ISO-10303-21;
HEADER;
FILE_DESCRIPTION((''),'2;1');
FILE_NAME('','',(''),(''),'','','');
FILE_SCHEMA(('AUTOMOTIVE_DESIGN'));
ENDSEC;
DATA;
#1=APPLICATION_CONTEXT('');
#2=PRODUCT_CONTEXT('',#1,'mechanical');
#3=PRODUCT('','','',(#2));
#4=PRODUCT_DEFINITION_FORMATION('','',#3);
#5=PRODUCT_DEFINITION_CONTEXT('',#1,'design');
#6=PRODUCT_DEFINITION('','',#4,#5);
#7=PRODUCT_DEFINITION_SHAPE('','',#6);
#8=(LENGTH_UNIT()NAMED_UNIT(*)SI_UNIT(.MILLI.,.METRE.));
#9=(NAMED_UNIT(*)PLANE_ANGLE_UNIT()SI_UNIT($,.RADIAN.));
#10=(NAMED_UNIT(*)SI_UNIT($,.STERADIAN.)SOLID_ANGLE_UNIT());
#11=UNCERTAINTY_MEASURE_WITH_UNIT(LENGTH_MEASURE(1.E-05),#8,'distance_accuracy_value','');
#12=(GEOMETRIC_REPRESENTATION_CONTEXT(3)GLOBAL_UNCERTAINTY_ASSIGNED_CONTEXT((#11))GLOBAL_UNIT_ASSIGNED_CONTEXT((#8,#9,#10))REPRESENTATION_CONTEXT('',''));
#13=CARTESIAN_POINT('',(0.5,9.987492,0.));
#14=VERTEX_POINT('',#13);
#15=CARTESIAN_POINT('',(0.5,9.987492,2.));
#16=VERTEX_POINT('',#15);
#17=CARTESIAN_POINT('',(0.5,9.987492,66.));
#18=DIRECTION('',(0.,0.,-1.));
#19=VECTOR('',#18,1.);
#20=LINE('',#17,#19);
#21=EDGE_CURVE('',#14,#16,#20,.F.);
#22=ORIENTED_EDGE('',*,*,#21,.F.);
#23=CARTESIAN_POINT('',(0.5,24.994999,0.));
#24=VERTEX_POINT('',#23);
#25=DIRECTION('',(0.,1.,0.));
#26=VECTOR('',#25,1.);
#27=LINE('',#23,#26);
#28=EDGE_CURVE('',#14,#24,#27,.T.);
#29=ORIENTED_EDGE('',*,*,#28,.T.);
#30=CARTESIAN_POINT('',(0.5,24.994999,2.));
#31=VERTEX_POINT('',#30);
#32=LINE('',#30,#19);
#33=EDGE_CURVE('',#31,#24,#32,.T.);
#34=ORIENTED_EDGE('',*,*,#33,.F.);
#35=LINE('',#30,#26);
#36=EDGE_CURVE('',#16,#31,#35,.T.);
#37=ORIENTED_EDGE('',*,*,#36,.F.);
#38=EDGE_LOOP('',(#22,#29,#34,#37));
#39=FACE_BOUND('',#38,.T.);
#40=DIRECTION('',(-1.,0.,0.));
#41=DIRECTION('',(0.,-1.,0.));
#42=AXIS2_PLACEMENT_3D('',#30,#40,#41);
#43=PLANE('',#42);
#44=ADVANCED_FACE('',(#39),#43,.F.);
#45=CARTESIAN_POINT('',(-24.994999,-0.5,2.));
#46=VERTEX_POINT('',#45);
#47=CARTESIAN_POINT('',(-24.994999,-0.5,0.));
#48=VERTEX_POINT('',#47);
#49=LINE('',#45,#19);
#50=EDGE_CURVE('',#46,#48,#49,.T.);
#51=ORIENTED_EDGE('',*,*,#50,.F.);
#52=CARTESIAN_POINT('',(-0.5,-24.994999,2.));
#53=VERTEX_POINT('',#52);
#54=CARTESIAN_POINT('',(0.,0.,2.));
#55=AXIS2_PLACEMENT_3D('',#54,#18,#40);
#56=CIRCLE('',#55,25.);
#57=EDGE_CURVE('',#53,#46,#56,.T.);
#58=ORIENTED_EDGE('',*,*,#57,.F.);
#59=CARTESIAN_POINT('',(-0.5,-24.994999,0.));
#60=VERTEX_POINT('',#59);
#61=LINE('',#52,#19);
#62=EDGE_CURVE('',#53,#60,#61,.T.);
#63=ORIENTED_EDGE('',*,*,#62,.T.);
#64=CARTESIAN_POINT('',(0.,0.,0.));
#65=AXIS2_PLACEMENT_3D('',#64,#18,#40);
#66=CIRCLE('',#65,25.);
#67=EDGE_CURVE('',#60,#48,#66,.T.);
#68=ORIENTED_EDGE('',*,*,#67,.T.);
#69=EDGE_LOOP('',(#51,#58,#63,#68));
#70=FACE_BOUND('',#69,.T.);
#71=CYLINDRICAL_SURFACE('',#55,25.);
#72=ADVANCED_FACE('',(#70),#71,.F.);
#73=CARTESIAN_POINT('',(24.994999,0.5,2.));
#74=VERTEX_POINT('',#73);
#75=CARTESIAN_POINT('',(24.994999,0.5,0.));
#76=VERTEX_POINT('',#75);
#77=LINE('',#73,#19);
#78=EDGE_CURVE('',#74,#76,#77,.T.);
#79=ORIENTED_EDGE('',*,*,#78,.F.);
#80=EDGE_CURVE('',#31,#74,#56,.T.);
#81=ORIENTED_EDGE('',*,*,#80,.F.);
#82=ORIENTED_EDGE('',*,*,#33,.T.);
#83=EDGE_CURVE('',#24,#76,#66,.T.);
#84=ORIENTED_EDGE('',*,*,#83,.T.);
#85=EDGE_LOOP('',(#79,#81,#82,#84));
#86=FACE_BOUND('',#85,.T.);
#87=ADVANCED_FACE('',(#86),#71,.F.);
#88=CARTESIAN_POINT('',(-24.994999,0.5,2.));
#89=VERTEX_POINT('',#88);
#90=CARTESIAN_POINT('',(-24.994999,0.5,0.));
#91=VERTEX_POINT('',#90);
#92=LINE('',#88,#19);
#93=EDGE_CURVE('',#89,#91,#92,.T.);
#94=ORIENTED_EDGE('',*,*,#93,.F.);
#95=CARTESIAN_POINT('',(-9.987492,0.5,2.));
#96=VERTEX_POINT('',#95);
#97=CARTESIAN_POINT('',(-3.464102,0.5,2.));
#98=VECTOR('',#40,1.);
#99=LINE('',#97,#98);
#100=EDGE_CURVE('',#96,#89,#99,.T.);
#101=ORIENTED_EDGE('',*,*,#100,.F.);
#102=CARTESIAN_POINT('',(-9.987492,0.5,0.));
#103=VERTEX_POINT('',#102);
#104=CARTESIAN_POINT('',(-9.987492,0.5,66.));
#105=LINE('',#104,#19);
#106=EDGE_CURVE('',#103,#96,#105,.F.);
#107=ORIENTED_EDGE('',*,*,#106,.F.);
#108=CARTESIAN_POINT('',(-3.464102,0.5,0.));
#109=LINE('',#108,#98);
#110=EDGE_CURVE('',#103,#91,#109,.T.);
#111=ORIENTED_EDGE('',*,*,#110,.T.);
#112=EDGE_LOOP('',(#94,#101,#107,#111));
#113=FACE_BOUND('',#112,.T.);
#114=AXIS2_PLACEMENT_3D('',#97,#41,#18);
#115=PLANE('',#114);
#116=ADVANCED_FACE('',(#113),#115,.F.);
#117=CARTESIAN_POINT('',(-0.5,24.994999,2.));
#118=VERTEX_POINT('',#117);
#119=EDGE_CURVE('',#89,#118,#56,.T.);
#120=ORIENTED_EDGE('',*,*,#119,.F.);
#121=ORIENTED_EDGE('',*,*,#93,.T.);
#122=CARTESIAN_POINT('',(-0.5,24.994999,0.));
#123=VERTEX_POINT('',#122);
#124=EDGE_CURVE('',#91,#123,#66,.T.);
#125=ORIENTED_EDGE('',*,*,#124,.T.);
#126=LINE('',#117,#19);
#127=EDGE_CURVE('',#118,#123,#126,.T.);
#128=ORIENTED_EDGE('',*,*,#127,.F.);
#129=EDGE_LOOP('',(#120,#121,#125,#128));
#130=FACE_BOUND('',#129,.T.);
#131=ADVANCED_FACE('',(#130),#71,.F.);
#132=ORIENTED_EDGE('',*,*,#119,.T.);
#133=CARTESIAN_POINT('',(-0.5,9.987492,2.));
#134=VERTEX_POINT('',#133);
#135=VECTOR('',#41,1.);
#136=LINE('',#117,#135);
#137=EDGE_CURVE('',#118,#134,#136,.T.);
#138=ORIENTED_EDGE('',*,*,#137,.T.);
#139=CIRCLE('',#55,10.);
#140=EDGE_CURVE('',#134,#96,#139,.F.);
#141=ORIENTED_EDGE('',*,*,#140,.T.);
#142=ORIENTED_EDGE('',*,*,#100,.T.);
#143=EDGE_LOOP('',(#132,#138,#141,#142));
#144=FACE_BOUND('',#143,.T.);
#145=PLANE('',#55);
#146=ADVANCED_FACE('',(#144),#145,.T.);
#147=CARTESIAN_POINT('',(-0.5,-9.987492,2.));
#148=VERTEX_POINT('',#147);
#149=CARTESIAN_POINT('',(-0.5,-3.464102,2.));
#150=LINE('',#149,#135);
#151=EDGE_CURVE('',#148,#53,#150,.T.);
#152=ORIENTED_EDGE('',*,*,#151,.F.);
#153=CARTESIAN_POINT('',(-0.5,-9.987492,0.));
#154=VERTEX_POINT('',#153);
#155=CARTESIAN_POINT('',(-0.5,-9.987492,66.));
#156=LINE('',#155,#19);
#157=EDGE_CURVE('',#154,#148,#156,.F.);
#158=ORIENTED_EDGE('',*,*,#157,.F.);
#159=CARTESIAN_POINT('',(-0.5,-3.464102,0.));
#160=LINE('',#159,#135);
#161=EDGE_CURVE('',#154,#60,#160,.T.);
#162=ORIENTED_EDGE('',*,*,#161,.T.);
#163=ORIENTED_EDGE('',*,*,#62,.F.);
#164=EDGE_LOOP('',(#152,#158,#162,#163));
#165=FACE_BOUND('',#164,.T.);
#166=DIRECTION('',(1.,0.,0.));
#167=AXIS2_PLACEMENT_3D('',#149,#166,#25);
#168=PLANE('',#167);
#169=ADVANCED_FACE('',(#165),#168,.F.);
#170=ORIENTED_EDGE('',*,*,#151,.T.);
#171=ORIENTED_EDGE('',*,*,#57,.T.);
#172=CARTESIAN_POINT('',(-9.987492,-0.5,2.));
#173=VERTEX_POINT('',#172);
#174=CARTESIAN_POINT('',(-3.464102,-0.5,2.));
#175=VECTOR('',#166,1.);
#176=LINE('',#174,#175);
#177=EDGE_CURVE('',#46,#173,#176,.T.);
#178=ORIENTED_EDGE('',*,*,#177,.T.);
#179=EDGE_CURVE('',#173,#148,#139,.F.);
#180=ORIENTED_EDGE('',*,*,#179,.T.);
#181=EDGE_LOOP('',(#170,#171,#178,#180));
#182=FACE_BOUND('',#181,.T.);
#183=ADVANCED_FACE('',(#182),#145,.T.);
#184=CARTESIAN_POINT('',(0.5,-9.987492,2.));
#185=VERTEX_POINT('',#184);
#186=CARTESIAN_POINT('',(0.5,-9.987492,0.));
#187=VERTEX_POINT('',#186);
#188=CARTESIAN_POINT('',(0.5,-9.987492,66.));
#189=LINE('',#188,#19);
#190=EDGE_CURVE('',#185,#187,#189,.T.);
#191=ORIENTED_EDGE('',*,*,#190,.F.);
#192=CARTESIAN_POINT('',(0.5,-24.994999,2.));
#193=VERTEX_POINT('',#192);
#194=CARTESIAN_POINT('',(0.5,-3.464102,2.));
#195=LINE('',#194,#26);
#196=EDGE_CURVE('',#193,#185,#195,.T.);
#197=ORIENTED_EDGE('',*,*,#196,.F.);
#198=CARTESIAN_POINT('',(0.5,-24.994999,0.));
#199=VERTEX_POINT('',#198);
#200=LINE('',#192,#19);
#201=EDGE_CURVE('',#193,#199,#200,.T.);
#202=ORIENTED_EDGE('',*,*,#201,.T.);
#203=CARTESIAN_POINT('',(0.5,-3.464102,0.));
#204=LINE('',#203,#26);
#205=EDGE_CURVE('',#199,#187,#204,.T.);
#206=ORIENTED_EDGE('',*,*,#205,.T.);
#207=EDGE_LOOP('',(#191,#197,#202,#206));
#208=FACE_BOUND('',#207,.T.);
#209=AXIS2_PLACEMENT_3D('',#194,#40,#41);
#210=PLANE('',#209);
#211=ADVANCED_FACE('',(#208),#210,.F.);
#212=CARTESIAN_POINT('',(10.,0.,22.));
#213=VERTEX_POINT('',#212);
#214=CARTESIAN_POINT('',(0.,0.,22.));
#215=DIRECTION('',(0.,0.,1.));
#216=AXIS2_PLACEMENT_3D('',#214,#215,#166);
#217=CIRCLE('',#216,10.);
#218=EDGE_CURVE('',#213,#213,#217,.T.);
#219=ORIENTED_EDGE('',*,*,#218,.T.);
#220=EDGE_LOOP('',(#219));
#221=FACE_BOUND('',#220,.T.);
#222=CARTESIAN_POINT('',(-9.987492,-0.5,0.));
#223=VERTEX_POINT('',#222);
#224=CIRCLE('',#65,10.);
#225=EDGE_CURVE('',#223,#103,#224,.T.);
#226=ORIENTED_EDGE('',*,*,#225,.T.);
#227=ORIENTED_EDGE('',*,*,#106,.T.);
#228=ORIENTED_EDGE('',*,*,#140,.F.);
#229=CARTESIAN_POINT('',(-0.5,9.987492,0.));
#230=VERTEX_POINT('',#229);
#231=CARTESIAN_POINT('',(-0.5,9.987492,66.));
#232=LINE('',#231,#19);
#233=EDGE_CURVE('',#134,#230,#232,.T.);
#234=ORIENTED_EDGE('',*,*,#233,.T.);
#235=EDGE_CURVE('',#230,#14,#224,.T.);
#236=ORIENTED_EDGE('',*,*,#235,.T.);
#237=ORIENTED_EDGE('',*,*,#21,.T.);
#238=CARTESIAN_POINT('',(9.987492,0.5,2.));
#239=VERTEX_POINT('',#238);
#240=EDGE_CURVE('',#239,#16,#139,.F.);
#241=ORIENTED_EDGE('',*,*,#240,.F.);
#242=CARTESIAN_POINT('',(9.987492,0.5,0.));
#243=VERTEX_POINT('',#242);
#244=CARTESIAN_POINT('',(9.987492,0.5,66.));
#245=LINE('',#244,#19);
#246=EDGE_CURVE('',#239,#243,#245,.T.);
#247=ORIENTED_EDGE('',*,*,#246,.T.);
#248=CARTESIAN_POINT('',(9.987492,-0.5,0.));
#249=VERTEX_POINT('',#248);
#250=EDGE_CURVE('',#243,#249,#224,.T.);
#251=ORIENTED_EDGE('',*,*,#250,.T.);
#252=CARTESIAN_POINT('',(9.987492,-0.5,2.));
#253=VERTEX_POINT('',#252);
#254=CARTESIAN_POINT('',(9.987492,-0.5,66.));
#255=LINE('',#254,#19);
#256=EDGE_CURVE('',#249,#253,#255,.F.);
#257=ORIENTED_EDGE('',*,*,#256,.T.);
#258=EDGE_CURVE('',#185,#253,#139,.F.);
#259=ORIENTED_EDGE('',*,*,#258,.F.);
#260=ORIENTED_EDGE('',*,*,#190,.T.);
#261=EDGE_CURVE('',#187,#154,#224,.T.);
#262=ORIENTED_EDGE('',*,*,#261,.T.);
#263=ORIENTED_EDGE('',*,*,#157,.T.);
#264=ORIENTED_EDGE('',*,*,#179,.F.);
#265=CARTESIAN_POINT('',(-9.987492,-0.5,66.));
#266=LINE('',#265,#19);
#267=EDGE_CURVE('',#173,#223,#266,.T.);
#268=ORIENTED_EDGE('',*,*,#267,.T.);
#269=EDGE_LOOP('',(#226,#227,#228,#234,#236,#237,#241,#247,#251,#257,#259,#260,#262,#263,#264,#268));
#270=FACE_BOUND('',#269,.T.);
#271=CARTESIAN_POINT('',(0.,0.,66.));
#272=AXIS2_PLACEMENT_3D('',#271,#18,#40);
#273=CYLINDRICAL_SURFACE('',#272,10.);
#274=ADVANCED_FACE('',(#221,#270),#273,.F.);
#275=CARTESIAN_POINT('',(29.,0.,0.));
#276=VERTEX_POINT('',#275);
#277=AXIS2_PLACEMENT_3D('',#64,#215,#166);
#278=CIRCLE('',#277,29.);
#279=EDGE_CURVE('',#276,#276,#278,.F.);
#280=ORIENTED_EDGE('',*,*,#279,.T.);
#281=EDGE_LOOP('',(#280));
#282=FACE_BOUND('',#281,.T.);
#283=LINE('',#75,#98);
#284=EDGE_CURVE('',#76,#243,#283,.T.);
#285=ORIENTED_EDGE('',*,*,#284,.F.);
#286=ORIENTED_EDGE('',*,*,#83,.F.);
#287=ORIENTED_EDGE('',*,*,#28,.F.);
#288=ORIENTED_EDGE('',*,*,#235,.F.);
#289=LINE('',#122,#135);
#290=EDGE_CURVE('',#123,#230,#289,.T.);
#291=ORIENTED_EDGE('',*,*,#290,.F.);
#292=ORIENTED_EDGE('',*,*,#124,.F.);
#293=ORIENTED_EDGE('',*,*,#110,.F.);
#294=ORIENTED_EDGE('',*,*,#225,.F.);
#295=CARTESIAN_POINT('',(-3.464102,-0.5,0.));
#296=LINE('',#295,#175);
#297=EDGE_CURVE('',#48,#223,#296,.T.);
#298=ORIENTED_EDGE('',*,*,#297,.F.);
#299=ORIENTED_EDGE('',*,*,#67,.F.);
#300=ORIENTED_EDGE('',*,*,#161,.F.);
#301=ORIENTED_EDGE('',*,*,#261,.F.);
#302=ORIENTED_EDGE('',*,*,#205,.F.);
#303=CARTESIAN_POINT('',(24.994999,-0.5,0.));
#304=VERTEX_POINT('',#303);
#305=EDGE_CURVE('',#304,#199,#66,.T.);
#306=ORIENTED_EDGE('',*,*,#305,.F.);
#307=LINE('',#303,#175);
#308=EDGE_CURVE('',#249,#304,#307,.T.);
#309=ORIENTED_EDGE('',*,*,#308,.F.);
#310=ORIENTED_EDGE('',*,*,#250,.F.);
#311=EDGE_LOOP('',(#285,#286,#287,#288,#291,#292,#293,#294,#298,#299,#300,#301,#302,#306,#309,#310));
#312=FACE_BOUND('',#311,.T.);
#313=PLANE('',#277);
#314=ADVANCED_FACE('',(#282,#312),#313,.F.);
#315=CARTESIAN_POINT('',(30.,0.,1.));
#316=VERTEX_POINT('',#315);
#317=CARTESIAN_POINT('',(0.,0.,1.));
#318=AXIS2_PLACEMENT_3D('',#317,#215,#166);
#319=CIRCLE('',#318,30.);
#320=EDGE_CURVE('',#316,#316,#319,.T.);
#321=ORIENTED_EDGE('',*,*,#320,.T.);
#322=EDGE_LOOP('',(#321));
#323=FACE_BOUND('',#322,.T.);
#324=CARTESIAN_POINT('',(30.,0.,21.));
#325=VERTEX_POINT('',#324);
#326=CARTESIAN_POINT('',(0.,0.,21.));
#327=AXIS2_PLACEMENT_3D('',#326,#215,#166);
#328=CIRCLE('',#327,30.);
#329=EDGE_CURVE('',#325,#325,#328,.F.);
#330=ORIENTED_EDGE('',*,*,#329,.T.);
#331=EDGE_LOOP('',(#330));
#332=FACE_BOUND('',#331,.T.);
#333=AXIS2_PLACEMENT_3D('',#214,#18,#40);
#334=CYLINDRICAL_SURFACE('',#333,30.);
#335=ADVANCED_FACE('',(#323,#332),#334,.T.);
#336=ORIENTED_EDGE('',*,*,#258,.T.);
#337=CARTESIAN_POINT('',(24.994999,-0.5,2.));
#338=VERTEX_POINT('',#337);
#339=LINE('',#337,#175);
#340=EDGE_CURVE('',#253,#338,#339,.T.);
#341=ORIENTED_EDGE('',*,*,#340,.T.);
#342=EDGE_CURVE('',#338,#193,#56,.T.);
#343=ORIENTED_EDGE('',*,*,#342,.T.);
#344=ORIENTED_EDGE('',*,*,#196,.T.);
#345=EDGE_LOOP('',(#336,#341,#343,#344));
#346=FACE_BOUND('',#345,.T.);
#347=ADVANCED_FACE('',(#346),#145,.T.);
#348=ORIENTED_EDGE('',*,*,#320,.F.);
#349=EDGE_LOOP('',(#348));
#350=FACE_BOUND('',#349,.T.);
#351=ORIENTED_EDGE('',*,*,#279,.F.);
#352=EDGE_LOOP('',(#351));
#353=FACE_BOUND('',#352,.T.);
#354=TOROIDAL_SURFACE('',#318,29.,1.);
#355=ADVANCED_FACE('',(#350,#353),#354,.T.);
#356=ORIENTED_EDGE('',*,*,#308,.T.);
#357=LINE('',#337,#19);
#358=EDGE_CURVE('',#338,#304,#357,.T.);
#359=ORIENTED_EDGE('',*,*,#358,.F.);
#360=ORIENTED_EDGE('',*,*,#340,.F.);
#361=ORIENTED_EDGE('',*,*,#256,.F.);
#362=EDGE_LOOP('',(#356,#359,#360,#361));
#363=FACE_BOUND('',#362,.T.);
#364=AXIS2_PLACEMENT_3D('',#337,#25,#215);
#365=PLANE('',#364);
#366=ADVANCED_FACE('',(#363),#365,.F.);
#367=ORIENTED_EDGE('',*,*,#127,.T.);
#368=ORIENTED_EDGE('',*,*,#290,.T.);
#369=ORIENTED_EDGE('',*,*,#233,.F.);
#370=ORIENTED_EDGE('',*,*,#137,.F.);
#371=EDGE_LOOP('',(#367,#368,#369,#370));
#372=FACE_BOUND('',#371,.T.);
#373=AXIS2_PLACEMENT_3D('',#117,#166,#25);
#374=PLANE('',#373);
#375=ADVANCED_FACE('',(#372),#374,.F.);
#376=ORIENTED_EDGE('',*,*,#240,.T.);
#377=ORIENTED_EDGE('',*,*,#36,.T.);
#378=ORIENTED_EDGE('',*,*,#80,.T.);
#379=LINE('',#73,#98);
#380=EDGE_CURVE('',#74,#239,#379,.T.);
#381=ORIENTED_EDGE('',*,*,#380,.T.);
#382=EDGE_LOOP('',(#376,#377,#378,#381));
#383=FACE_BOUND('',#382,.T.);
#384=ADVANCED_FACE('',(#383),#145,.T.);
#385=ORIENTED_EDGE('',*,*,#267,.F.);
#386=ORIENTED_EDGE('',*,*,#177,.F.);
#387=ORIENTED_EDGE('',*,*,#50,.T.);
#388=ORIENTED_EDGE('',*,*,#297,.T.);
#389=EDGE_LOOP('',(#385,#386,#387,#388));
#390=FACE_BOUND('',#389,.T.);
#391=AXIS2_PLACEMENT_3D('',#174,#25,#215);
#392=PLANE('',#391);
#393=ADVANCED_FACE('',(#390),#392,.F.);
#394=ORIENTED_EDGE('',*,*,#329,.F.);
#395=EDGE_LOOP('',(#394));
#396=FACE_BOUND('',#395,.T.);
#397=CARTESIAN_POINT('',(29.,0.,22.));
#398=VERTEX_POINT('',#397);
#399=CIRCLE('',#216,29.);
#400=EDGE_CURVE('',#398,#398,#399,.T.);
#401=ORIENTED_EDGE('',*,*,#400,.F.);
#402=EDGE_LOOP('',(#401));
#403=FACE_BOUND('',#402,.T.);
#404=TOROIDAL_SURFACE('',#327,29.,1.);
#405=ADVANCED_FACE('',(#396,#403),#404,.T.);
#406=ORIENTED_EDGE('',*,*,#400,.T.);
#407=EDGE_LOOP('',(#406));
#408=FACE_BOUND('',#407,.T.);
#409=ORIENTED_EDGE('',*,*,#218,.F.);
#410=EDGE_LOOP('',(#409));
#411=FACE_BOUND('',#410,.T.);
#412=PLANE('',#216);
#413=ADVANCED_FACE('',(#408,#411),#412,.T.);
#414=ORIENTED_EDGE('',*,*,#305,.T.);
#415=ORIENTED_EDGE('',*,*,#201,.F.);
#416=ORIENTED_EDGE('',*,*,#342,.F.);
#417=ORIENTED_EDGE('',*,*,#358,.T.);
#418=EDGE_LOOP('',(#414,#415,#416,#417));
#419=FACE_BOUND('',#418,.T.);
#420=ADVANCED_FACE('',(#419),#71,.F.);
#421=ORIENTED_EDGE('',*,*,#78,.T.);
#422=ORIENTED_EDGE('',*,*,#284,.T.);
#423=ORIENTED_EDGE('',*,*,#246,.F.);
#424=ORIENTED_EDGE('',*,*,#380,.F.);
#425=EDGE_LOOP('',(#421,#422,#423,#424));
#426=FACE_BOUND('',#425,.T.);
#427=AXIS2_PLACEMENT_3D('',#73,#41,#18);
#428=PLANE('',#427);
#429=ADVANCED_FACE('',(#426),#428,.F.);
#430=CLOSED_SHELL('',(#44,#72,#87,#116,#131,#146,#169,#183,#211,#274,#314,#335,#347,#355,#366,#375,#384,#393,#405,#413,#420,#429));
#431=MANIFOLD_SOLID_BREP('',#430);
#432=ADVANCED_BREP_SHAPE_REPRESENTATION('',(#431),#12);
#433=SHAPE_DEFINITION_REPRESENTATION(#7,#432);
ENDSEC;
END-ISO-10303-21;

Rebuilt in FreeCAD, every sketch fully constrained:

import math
import FreeCAD as App
import Part
import Sketcher
from FreeCAD import Vector


def edges_at(feature, points):
    """Names of the edges that pass closest to the given points."""
    edges = feature.Shape.Edges
    near = lambda p: min(range(len(edges)), key=lambda i: edges[i].distToShape(Part.Vertex(*p))[0])
    return sorted({f"Edge{near(p) + 1}" for p in points})

doc = App.newDocument("Part")
params = doc.addObject("Spreadsheet::Sheet", "Params")
for row, (alias, value) in enumerate([
    ("sketch1_diameter", "60 mm"),
    ("pad1_length", "22 mm"),
    ("sketch2_diameter", "20 mm"),
    ("pocket1_length", "66 mm"),
    ("fillet_radius", "1 mm"),
    ("sketch3_radius", "25 mm"),
    ("sketch3_radius2", "3.5 mm"),
    ("pocket2_length", "2 mm"),
], start=1):
    params.set(f"A{row}", alias)
    params.set(f"B{row}", "=" + value)
    params.setAlias(f"B{row}", alias)

body = doc.addObject("PartDesign::Body", "Body")

sketch1 = body.newObject("Sketcher::SketchObject", "Sketch")
sketch1.AttachmentSupport = (doc.getObject("XY_Plane"), [""])
sketch1.MapMode = "FlatFace"
sketch1.addGeometry(Part.Circle(Vector(0, 0, 0), Vector(0, 0, 1), 30), False)
sketch1.addConstraint([
    Sketcher.Constraint("Coincident", 0, 3, -1, 1),
    Sketcher.Constraint("Diameter", 0, 60.0),
])
sketch1.setExpression("Constraints[1]", "Params.sketch1_diameter")
pad1 = body.newObject("PartDesign::Pad", "Pad")
pad1.Profile = sketch1
pad1.setExpression("Length", "Params.pad1_length")

sketch2 = body.newObject("Sketcher::SketchObject", "Sketch001")
sketch2.AttachmentSupport = (doc.getObject("XY_Plane"), [""])
sketch2.MapMode = "FlatFace"
sketch2.addGeometry(Part.Circle(Vector(0, 0, 0), Vector(0, 0, 1), 10), False)
sketch2.addConstraint([
    Sketcher.Constraint("Coincident", 0, 3, -1, 1),
    Sketcher.Constraint("Diameter", 0, 20.0),
])
sketch2.setExpression("Constraints[1]", "Params.sketch2_diameter")
pocket1 = body.newObject("PartDesign::Pocket", "Pocket")
pocket1.Profile = sketch2
pocket1.setExpression("Length", "Params.pocket1_length")
pocket1.Reversed = True
doc.recompute()

fillet = body.newObject("PartDesign::Fillet", "Fillet")
fillet.Base = (pocket1, edges_at(pocket1, [(-30, 0, 0), (-30, 0, 22)]))
fillet.setExpression("Radius", "Params.fillet_radius")

sketch3 = body.newObject("Sketcher::SketchObject", "Sketch002")
sketch3.AttachmentSupport = (doc.getObject("XY_Plane"), [""])
sketch3.MapMode = "FlatFace"
sketch3.addGeometry([
    Part.LineSegment(Vector(0.5, 3.464102, 0), Vector(0.5, 24.994999, 0)),
    Part.ArcOfCircle(Part.Circle(Vector(0, 0, 0), Vector(0, 0, 1), 25), math.radians(1.145992), math.radians(88.854008)),
    Part.LineSegment(Vector(24.994999, 0.5, 0), Vector(3.464102, 0.5, 0)),
    Part.ArcOfCircle(Part.Circle(Vector(0, 0, 0), Vector(0, 0, 1), 3.5), math.radians(8.213211), math.radians(81.786789)),
    Part.LineSegment(Vector(-0.5, 24.994999, 0), Vector(-0.5, 3.464102, 0)),
    Part.ArcOfCircle(Part.Circle(Vector(0, 0, 0), Vector(0, 0, 1), 3.5), math.radians(98.213211), math.radians(171.786789)),
    Part.LineSegment(Vector(-3.464102, 0.5, 0), Vector(-24.994999, 0.5, 0)),
    Part.ArcOfCircle(Part.Circle(Vector(0, 0, 0), Vector(0, 0, 1), 25), math.radians(91.145992), math.radians(178.854008)),
    Part.LineSegment(Vector(3.464102, -0.5, 0), Vector(24.994999, -0.5, 0)),
    Part.ArcOfCircle(Part.Circle(Vector(0, 0, 0), Vector(0, 0, 1), 25), math.radians(-88.854008), math.radians(-1.145992)),
    Part.LineSegment(Vector(0.5, -24.994999, 0), Vector(0.5, -3.464102, 0)),
    Part.ArcOfCircle(Part.Circle(Vector(0, 0, 0), Vector(0, 0, 1), 3.5), math.radians(-81.786789), math.radians(-8.213211)),
    Part.LineSegment(Vector(-0.5, -3.464102, 0), Vector(-0.5, -24.994999, 0)),
    Part.ArcOfCircle(Part.Circle(Vector(0, 0, 0), Vector(0, 0, 1), 25), math.radians(-178.854008), math.radians(-91.145992)),
    Part.LineSegment(Vector(-24.994999, -0.5, 0), Vector(-3.464102, -0.5, 0)),
    Part.ArcOfCircle(Part.Circle(Vector(0, 0, 0), Vector(0, 0, 1), 3.5), math.radians(-171.786789), math.radians(-98.213211)),
], False)
sketch3.addConstraint([
    Sketcher.Constraint("Coincident", 0, 2, 1, 2),
    Sketcher.Constraint("Coincident", 1, 1, 2, 1),
    Sketcher.Constraint("Coincident", 2, 2, 3, 1),
    Sketcher.Constraint("Coincident", 3, 2, 0, 1),
    Sketcher.Constraint("Coincident", 4, 2, 5, 1),
    Sketcher.Constraint("Coincident", 5, 2, 6, 1),
    Sketcher.Constraint("Coincident", 6, 2, 7, 2),
    Sketcher.Constraint("Coincident", 7, 1, 4, 1),
    Sketcher.Constraint("Coincident", 8, 2, 9, 2),
    Sketcher.Constraint("Coincident", 9, 1, 10, 1),
    Sketcher.Constraint("Coincident", 10, 2, 11, 1),
    Sketcher.Constraint("Coincident", 11, 2, 8, 1),
    Sketcher.Constraint("Coincident", 12, 2, 13, 2),
    Sketcher.Constraint("Coincident", 13, 1, 14, 1),
    Sketcher.Constraint("Coincident", 14, 2, 15, 1),
    Sketcher.Constraint("Coincident", 15, 2, 12, 1),
    Sketcher.Constraint("Vertical", 0),
    Sketcher.Constraint("Horizontal", 2),
    Sketcher.Constraint("Vertical", 4),
    Sketcher.Constraint("Horizontal", 6),
    Sketcher.Constraint("Horizontal", 8),
    Sketcher.Constraint("Vertical", 10),
    Sketcher.Constraint("Vertical", 12),
    Sketcher.Constraint("Horizontal", 14),
    Sketcher.Constraint("Coincident", 1, 3, -1, 1),
    Sketcher.Constraint("Coincident", 3, 3, -1, 1),
    Sketcher.Constraint("Coincident", 5, 3, -1, 1),
    Sketcher.Constraint("Coincident", 7, 3, -1, 1),
    Sketcher.Constraint("Coincident", 9, 3, -1, 1),
    Sketcher.Constraint("Coincident", 11, 3, -1, 1),
    Sketcher.Constraint("Coincident", 13, 3, -1, 1),
    Sketcher.Constraint("Coincident", 15, 3, -1, 1),
    Sketcher.Constraint("Equal", 3, 5),
    Sketcher.Constraint("Equal", 1, 7),
    Sketcher.Constraint("Equal", 7, 9),
    Sketcher.Constraint("Equal", 5, 11),
    Sketcher.Constraint("Equal", 9, 13),
    Sketcher.Constraint("Equal", 11, 15),
    Sketcher.Constraint("Horizontal", 3, 2, 4, 2),
    Sketcher.Constraint("Horizontal", 2, 2, 5, 2),
    Sketcher.Constraint("Horizontal", 9, 1, 12, 2),
    Sketcher.Constraint("Horizontal", 11, 2, 13, 1),
    Sketcher.Constraint("Vertical", 1, 1, 8, 2),
    Sketcher.Constraint("Vertical", 3, 2, 9, 1),
    Sketcher.Constraint("Equal", 14, 0),
    Sketcher.Constraint("Radius", 1, 25.0),
    Sketcher.Constraint("Radius", 3, 3.5),
    Sketcher.Constraint("DistanceX", 4, 2, 3, 2, 1.0),
])
sketch3.setExpression("Constraints[45]", "Params.sketch3_radius")
sketch3.setExpression("Constraints[46]", "Params.sketch3_radius2")
pocket2 = body.newObject("PartDesign::Pocket", "Pocket001")
pocket2.Profile = sketch3
pocket2.setExpression("Length", "Params.pocket2_length")
pocket2.Reversed = True

doc.recompute()
